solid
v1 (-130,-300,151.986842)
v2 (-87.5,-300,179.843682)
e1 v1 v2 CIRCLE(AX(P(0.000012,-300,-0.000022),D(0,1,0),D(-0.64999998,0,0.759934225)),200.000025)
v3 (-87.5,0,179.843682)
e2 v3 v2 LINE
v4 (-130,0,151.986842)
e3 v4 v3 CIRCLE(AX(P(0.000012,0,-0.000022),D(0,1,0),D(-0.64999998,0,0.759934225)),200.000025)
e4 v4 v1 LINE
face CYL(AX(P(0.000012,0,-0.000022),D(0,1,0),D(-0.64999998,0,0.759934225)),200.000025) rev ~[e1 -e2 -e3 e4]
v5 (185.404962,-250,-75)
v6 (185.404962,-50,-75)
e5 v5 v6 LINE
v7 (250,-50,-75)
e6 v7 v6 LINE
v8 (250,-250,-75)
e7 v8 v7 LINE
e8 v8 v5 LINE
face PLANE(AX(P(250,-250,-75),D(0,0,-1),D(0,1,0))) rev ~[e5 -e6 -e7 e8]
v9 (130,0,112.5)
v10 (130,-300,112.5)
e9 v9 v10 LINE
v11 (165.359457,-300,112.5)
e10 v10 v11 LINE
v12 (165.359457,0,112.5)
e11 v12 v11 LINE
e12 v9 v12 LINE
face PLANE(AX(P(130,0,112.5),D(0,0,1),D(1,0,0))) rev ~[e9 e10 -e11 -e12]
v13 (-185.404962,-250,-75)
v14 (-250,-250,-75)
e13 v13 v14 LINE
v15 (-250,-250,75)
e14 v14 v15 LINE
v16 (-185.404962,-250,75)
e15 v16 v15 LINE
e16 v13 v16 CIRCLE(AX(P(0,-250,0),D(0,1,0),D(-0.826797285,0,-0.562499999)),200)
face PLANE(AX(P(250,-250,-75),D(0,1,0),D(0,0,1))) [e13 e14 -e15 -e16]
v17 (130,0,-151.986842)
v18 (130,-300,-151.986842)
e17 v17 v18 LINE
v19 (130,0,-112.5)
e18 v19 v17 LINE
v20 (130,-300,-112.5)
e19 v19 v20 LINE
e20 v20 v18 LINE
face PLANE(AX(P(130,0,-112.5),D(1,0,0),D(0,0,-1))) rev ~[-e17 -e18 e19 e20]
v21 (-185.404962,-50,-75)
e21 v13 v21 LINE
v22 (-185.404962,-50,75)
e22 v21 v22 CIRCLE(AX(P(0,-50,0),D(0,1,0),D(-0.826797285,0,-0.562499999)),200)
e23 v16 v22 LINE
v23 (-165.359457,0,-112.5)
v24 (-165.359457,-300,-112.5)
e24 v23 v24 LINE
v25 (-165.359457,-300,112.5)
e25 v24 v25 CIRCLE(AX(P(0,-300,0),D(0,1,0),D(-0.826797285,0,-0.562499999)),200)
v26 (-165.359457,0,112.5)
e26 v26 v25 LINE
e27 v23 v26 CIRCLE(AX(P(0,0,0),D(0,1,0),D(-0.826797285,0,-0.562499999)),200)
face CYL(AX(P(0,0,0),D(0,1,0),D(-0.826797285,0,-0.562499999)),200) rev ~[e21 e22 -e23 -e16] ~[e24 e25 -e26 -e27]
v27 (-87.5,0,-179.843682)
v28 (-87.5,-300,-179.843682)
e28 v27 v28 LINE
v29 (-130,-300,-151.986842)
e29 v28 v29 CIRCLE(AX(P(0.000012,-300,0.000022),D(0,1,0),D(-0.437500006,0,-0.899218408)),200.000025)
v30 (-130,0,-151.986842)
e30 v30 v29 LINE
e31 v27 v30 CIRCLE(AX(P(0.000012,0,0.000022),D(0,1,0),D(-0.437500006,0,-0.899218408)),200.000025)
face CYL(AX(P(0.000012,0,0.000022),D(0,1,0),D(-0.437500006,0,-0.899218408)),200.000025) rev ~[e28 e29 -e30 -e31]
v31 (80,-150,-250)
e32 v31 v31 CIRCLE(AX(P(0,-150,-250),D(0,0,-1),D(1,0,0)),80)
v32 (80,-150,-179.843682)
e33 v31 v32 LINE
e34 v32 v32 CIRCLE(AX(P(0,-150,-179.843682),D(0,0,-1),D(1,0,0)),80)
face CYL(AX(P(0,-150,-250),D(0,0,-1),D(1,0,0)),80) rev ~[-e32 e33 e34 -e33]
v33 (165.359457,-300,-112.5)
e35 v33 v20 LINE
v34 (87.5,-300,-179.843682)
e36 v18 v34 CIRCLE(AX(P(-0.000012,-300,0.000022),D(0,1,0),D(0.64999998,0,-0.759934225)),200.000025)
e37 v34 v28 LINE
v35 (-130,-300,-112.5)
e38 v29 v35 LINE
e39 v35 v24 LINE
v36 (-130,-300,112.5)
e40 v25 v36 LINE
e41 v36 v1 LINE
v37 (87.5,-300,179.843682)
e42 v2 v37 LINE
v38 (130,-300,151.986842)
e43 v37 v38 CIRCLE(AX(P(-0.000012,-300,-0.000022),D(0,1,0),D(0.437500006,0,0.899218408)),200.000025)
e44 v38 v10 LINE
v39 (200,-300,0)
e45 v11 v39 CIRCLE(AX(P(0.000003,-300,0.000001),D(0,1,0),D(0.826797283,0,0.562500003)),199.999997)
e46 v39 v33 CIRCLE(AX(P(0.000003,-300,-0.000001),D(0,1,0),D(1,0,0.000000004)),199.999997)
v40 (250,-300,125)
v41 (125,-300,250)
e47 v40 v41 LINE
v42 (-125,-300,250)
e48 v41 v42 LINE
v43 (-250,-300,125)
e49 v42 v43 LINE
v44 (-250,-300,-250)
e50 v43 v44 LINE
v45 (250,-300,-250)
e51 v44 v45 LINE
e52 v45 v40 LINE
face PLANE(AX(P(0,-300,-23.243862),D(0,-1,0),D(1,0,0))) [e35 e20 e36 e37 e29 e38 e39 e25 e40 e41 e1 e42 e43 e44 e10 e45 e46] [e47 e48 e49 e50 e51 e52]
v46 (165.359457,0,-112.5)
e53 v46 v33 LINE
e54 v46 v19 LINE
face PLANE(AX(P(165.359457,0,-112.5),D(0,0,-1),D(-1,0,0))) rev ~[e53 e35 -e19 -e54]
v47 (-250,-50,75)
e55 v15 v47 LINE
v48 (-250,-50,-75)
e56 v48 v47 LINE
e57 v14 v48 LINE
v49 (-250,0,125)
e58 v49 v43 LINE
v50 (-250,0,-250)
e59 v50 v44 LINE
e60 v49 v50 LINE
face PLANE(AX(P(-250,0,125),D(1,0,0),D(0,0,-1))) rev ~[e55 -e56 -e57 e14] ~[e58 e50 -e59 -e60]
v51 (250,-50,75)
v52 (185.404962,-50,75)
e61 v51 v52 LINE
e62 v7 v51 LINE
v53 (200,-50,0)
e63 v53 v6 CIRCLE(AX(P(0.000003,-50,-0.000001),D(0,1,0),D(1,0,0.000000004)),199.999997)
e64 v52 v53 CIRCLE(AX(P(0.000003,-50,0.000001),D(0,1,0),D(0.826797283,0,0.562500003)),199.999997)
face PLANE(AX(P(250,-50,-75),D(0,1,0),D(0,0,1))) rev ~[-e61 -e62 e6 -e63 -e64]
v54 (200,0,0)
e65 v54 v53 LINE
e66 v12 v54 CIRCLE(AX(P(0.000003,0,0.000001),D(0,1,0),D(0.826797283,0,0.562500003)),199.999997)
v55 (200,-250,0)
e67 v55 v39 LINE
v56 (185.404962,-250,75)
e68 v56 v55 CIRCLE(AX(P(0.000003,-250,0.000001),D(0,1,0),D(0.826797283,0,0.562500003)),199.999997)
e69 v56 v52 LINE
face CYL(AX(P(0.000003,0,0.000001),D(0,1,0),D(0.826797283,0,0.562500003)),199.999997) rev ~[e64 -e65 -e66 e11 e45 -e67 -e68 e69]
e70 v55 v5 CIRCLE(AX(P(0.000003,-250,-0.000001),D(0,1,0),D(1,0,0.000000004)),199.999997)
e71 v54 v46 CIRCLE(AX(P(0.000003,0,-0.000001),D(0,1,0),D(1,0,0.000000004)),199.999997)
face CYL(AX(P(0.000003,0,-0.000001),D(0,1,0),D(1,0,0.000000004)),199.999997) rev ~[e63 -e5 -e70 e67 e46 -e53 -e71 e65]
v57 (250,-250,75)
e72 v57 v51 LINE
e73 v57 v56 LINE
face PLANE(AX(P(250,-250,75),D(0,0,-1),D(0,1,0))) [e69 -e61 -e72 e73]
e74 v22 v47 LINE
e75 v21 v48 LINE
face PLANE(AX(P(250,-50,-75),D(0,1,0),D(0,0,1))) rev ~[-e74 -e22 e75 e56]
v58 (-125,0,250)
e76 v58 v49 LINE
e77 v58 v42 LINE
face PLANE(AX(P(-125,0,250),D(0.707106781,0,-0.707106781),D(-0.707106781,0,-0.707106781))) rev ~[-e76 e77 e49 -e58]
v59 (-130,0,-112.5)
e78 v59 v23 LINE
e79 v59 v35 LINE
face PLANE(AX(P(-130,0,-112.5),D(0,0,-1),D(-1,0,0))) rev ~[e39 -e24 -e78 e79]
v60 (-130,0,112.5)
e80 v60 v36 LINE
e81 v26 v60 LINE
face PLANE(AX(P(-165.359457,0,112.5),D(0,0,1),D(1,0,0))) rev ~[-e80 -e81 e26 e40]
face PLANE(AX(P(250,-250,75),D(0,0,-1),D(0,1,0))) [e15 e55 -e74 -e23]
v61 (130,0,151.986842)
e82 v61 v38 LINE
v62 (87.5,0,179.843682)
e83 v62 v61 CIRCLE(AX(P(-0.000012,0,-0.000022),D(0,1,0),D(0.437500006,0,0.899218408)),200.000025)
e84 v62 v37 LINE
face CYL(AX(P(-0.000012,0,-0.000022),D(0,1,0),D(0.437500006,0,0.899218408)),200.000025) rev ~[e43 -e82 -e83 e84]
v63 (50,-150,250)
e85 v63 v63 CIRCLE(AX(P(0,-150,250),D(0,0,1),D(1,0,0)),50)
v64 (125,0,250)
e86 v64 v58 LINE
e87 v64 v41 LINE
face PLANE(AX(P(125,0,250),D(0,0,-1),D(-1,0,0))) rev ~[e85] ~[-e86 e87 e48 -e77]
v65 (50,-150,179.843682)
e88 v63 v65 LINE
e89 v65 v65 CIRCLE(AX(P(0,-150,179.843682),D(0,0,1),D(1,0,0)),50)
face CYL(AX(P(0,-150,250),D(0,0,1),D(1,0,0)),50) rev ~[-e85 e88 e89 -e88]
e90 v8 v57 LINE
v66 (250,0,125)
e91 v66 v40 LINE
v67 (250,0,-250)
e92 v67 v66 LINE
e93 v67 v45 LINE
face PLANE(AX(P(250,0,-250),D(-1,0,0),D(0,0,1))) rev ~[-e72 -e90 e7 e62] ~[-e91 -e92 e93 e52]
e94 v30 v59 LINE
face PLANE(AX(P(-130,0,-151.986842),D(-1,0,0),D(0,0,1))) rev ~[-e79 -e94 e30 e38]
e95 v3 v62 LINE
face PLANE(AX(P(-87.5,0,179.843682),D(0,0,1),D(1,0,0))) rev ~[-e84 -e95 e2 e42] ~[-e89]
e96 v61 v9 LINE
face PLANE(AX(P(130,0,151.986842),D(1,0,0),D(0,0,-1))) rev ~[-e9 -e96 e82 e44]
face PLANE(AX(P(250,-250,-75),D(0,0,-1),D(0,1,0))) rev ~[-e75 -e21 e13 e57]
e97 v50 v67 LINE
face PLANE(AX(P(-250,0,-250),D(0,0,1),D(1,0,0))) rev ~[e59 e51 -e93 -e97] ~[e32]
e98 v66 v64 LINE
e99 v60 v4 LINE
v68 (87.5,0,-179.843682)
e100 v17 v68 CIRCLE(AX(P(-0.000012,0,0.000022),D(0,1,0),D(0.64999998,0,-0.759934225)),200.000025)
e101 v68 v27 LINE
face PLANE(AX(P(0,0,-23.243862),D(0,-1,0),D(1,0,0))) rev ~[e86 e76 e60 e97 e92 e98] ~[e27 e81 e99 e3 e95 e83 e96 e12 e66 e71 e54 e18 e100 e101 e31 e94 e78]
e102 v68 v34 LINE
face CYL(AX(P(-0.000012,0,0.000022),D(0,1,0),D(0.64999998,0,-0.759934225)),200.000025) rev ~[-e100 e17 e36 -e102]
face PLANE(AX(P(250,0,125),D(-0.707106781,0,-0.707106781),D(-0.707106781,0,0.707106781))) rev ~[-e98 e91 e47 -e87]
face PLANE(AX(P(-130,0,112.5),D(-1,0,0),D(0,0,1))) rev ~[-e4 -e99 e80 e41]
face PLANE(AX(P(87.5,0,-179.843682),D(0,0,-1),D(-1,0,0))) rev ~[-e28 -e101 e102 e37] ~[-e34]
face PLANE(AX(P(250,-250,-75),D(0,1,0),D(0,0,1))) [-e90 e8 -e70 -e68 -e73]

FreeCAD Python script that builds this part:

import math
import FreeCAD as App
import Part
import Sketcher

doc = App.newDocument("Part")
body = doc.addObject("PartDesign::Body", "Body")

# Sketch on XZ plane
sketch1 = doc.addObject("Sketcher::SketchObject", "Sketch")
body.addObject(sketch1)
sketch1.AttachmentSupport = (doc.XZ_Plane, [""])
sketch1.MapMode = "FlatFace"
sketch1.addGeometry(Part.LineSegment(App.Vector(-250, -250, 0), App.Vector(250, -250, 0)), False)
sketch1.addGeometry(Part.LineSegment(App.Vector(250, -250, 0), App.Vector(250, 125, 0)), False)
sketch1.addGeometry(Part.LineSegment(App.Vector(250, 125, 0), App.Vector(125, 250, 0)), False)
sketch1.addGeometry(Part.LineSegment(App.Vector(125, 250, 0), App.Vector(-125, 250, 0)), False)
sketch1.addGeometry(Part.LineSegment(App.Vector(-125, 250, 0), App.Vector(-250, 125, 0)), False)
sketch1.addGeometry(Part.LineSegment(App.Vector(-250, 125, 0), App.Vector(-250, -250, 0)), False)
sketch1.addGeometry(Part.ArcOfCircle(Part.Circle(App.Vector(0.000003, 0.000001, 0), App.Vector(0, 0, 1), 199.999997), math.radians(0), math.radians(34.228867)), False)
sketch1.addGeometry(Part.ArcOfCircle(Part.Circle(App.Vector(0.000003, -0.000001, 0), App.Vector(0, 0, 1), 199.999997), math.radians(-34.228867), math.radians(0)), False)
sketch1.addGeometry(Part.LineSegment(App.Vector(165.359457, -112.5, 0), App.Vector(130, -112.5, 0)), False)
sketch1.addGeometry(Part.LineSegment(App.Vector(130, -112.5, 0), App.Vector(130, -151.986842, 0)), False)
sketch1.addGeometry(Part.ArcOfCircle(Part.Circle(App.Vector(-0.000012, 0.000022, 0), App.Vector(0, 0, 1), 200.000025), math.radians(-64.05552), math.radians(-49.4584)), False)
sketch1.addGeometry(Part.LineSegment(App.Vector(87.5, -179.843682, 0), App.Vector(-87.5, -179.843682, 0)), False)
sketch1.addGeometry(Part.ArcOfCircle(Part.Circle(App.Vector(0.000012, 0.000022, 0), App.Vector(0, 0, 1), 200.000025), math.radians(-130.5416), math.radians(-115.94448)), False)
sketch1.addGeometry(Part.LineSegment(App.Vector(-130, -151.986842, 0), App.Vector(-130, -112.5, 0)), False)
sketch1.addGeometry(Part.LineSegment(App.Vector(-130, -112.5, 0), App.Vector(-165.359457, -112.5, 0)), False)
sketch1.addGeometry(Part.ArcOfCircle(Part.Circle(App.Vector(0, 0, 0), App.Vector(0, 0, 1), 200), math.radians(145.771134), math.radians(214.228866)), False)
sketch1.addGeometry(Part.LineSegment(App.Vector(-165.359457, 112.5, 0), App.Vector(-130, 112.5, 0)), False)
sketch1.addGeometry(Part.LineSegment(App.Vector(-130, 112.5, 0), App.Vector(-130, 151.986842, 0)), False)
sketch1.addGeometry(Part.ArcOfCircle(Part.Circle(App.Vector(0.000012, -0.000022, 0), App.Vector(0, 0, 1), 200.000025), math.radians(115.94448), math.radians(130.5416)), False)
sketch1.addGeometry(Part.LineSegment(App.Vector(-87.5, 179.843682, 0), App.Vector(87.5, 179.843682, 0)), False)
sketch1.addGeometry(Part.ArcOfCircle(Part.Circle(App.Vector(-0.000012, -0.000022, 0), App.Vector(0, 0, 1), 200.000025), math.radians(49.4584), math.radians(64.05552)), False)
sketch1.addGeometry(Part.LineSegment(App.Vector(130, 151.986842, 0), App.Vector(130, 112.5, 0)), False)
sketch1.addGeometry(Part.LineSegment(App.Vector(130, 112.5, 0), App.Vector(165.359457, 112.5, 0)), False)
sketch1.addConstraint(Sketcher.Constraint("Coincident", 0, 2, 1, 1))
sketch1.addConstraint(Sketcher.Constraint("Coincident", 1, 2, 2, 1))
sketch1.addConstraint(Sketcher.Constraint("Coincident", 2, 2, 3, 1))
sketch1.addConstraint(Sketcher.Constraint("Coincident", 3, 2, 4, 1))
sketch1.addConstraint(Sketcher.Constraint("Coincident", 4, 2, 5, 1))
sketch1.addConstraint(Sketcher.Constraint("Coincident", 5, 2, 0, 1))
sketch1.addConstraint(Sketcher.Constraint("Tangent", 6, 1, 7, 2))
sketch1.addConstraint(Sketcher.Constraint("Coincident", 7, 1, 8, 1))
sketch1.addConstraint(Sketcher.Constraint("Coincident", 8, 2, 9, 1))
sketch1.addConstraint(Sketcher.Constraint("Coincident", 9, 2, 10, 2))
sketch1.addConstraint(Sketcher.Constraint("Coincident", 10, 1, 11, 1))
sketch1.addConstraint(Sketcher.Constraint("Coincident", 11, 2, 12, 2))
sketch1.addConstraint(Sketcher.Constraint("Coincident", 12, 1, 13, 1))
sketch1.addConstraint(Sketcher.Constraint("Coincident", 13, 2, 14, 1))
sketch1.addConstraint(Sketcher.Constraint("Coincident", 14, 2, 15, 2))
sketch1.addConstraint(Sketcher.Constraint("Coincident", 15, 1, 16, 1))
sketch1.addConstraint(Sketcher.Constraint("Coincident", 16, 2, 17, 1))
sketch1.addConstraint(Sketcher.Constraint("Coincident", 17, 2, 18, 2))
sketch1.addConstraint(Sketcher.Constraint("Coincident", 18, 1, 19, 1))
sketch1.addConstraint(Sketcher.Constraint("Coincident", 19, 2, 20, 2))
sketch1.addConstraint(Sketcher.Constraint("Coincident", 20, 1, 21, 1))
sketch1.addConstraint(Sketcher.Constraint("Coincident", 21, 2, 22, 1))
sketch1.addConstraint(Sketcher.Constraint("Coincident", 22, 2, 6, 2))
sketch1.addConstraint(Sketcher.Constraint("Horizontal", 0))
sketch1.addConstraint(Sketcher.Constraint("Vertical", 1))
sketch1.addConstraint(Sketcher.Constraint("Horizontal", 3))
sketch1.addConstraint(Sketcher.Constraint("Vertical", 5))
sketch1.addConstraint(Sketcher.Constraint("Horizontal", 8))
sketch1.addConstraint(Sketcher.Constraint("Vertical", 9))
sketch1.addConstraint(Sketcher.Constraint("Horizontal", 11))
sketch1.addConstraint(Sketcher.Constraint("Vertical", 13))
sketch1.addConstraint(Sketcher.Constraint("Horizontal", 14))
sketch1.addConstraint(Sketcher.Constraint("Horizontal", 16))
sketch1.addConstraint(Sketcher.Constraint("Vertical", 17))
sketch1.addConstraint(Sketcher.Constraint("Horizontal", 19))
sketch1.addConstraint(Sketcher.Constraint("Vertical", 21))
sketch1.addConstraint(Sketcher.Constraint("Horizontal", 22))
sketch1.addConstraint(Sketcher.Constraint("Coincident", 6, 3, -1, 1))
sketch1.addConstraint(Sketcher.Constraint("Coincident", 15, 3, -1, 1))
sketch1.addConstraint(Sketcher.Constraint("Equal", 6, 7))
sketch1.addConstraint(Sketcher.Constraint("Equal", 10, 12))
sketch1.addConstraint(Sketcher.Constraint("Equal", 12, 18))
sketch1.addConstraint(Sketcher.Constraint("Equal", 18, 20))
sketch1.addConstraint(Sketcher.Constraint("Symmetric", 10, 3, 18, 3, -1, 1))
sketch1.addConstraint(Sketcher.Constraint("Symmetric", 12, 3, 20, 3, -1, 1))
sketch1.addConstraint(Sketcher.Constraint("Symmetric", 7, 1, 15, 1, -1, 1))
sketch1.addConstraint(Sketcher.Constraint("Symmetric", 13, 2, 21, 2, -1, 1))
sketch1.addConstraint(Sketcher.Constraint("Symmetric", 10, 3, 12, 3, -2))
sketch1.addConstraint(Sketcher.Constraint("Symmetric", 1, 2, 4, 2, -2))
sketch1.addConstraint(Sketcher.Constraint("Symmetric", 8, 2, 13, 2, -2))
sketch1.addConstraint(Sketcher.Constraint("PointOnObject", 6, 1, -1))
sketch1.addConstraint(Sketcher.Constraint("Perpendicular", 2, 4))
sketch1.addConstraint(Sketcher.Constraint("Horizontal", 17, 2, 20, 1))
sketch1.addConstraint(Sketcher.Constraint("Vertical", 11, 2, 18, 1))
sketch1.addConstraint(Sketcher.Constraint("Equal", 2, 4))
sketch1.addConstraint(Sketcher.Constraint("Radius", 15, 200.0))
sketch1.addConstraint(Sketcher.Constraint("DistanceX", 0, 1, 0, 2, 500.0))
sketch1.addConstraint(Sketcher.Constraint("DistanceX", 3, 2, 3, 1, 250.0))
sketch1.addConstraint(Sketcher.Constraint("DistanceX", 11, 2, 11, 1, 175.0))
sketch1.addConstraint(Sketcher.Constraint("DistanceY", 1, 1, 1, 2, 375.0))
sketch1.addConstraint(Sketcher.Constraint("DistanceY", 0, 2, -1, 1, 250.0))
sketch1.addConstraint(Sketcher.Constraint("DistanceX", -1, 1, 8, 2, 130.0))
sketch1.addConstraint(Sketcher.Constraint("DistanceY", 8, 2, -1, 1, 112.5))
sketch1.addConstraint(Sketcher.Constraint("Radius", 10, 200.000025))
sketch1.addConstraint(Sketcher.Constraint("DistanceY", 9, 2, 9, 1, 39.486842))
sketch1.addConstraint(Sketcher.Constraint("DistanceY", 11, 2, -1, 1, 179.843682))
pad1 = doc.addObject("PartDesign::Pad", "Pad")
body.addObject(pad1)
pad1.Profile = sketch1
pad1.Length = 300

# Sketch on XY plane
sketch2 = doc.addObject("Sketcher::SketchObject", "Sketch001")
body.addObject(sketch2)
sketch2.AttachmentSupport = (doc.XY_Plane, [""])
sketch2.MapMode = "FlatFace"
sketch2.AttachmentOffset = App.Placement(App.Vector(0, 0, 250), App.Rotation())
sketch2.addGeometry(Part.Circle(App.Vector(0, -150, 0), App.Vector(0, 0, 1), 50), False)
sketch2.addConstraint(Sketcher.Constraint("PointOnObject", 0, 3, -2))
sketch2.addConstraint(Sketcher.Constraint("Diameter", 0, 100.0))
sketch2.addConstraint(Sketcher.Constraint("DistanceY", 0, 3, -1, 1, 150.0))
pocket1 = doc.addObject("PartDesign::Pocket", "Pocket")
body.addObject(pocket1)
pocket1.Profile = sketch2
pocket1.Length = 70.156318

# Sketch on XY plane
sketch3 = doc.addObject("Sketcher::SketchObject", "Sketch002")
body.addObject(sketch3)
sketch3.AttachmentSupport = (doc.XY_Plane, [""])
sketch3.MapMode = "FlatFace"
sketch3.AttachmentOffset = App.Placement(App.Vector(0, 0, -250), App.Rotation())
sketch3.addGeometry(Part.Circle(App.Vector(0, -150, 0), App.Vector(0, 0, 1), 80), False)
sketch3.addConstraint(Sketcher.Constraint("PointOnObject", 0, 3, -2))
sketch3.addConstraint(Sketcher.Constraint("Diameter", 0, 160.0))
sketch3.addConstraint(Sketcher.Constraint("DistanceY", 0, 3, -1, 1, 150.0))
pocket2 = doc.addObject("PartDesign::Pocket", "Pocket001")
body.addObject(pocket2)
pocket2.Profile = sketch3
pocket2.Length = 70.156318
pocket2.Reversed = True

# Sketch on YZ plane
sketch4 = doc.addObject("Sketcher::SketchObject", "Sketch003")
body.addObject(sketch4)
sketch4.AttachmentSupport = (doc.YZ_Plane, [""])
sketch4.MapMode = "FlatFace"
sketch4.AttachmentOffset = App.Placement(App.Vector(0, 0, 250), App.Rotation())
sketch4.addGeometry(Part.LineSegment(App.Vector(-250, 75, 0), App.Vector(-250, -75, 0)), False)
sketch4.addGeometry(Part.LineSegment(App.Vector(-250, -75, 0), App.Vector(-50, -75, 0)), False)
sketch4.addGeometry(Part.LineSegment(App.Vector(-50, -75, 0), App.Vector(-50, 75, 0)), False)
sketch4.addGeometry(Part.LineSegment(App.Vector(-50, 75, 0), App.Vector(-250, 75, 0)), False)
sketch4.addConstraint(Sketcher.Constraint("Coincident", 0, 2, 1, 1))
sketch4.addConstraint(Sketcher.Constraint("Coincident", 1, 2, 2, 1))
sketch4.addConstraint(Sketcher.Constraint("Coincident", 2, 2, 3, 1))
sketch4.addConstraint(Sketcher.Constraint("Coincident", 3, 2, 0, 1))
sketch4.addConstraint(Sketcher.Constraint("Vertical", 0))
sketch4.addConstraint(Sketcher.Constraint("Horizontal", 1))
sketch4.addConstraint(Sketcher.Constraint("Vertical", 2))
sketch4.addConstraint(Sketcher.Constraint("Horizontal", 3))
sketch4.addConstraint(Sketcher.Constraint("DistanceX", 1, 1, 1, 2, 200.0))
sketch4.addConstraint(Sketcher.Constraint("DistanceY", 0, 2, 0, 1, 150.0))
sketch4.addConstraint(Sketcher.Constraint("DistanceX", 0, 2, -1, 1, 250.0))
sketch4.addConstraint(Sketcher.Constraint("DistanceY", 0, 2, -1, 1, 75.0))
pocket3 = doc.addObject("PartDesign::Pocket", "Pocket002")
body.addObject(pocket3)
pocket3.Profile = sketch4
pocket3.Type = "ThroughAll"

doc.recompute()
